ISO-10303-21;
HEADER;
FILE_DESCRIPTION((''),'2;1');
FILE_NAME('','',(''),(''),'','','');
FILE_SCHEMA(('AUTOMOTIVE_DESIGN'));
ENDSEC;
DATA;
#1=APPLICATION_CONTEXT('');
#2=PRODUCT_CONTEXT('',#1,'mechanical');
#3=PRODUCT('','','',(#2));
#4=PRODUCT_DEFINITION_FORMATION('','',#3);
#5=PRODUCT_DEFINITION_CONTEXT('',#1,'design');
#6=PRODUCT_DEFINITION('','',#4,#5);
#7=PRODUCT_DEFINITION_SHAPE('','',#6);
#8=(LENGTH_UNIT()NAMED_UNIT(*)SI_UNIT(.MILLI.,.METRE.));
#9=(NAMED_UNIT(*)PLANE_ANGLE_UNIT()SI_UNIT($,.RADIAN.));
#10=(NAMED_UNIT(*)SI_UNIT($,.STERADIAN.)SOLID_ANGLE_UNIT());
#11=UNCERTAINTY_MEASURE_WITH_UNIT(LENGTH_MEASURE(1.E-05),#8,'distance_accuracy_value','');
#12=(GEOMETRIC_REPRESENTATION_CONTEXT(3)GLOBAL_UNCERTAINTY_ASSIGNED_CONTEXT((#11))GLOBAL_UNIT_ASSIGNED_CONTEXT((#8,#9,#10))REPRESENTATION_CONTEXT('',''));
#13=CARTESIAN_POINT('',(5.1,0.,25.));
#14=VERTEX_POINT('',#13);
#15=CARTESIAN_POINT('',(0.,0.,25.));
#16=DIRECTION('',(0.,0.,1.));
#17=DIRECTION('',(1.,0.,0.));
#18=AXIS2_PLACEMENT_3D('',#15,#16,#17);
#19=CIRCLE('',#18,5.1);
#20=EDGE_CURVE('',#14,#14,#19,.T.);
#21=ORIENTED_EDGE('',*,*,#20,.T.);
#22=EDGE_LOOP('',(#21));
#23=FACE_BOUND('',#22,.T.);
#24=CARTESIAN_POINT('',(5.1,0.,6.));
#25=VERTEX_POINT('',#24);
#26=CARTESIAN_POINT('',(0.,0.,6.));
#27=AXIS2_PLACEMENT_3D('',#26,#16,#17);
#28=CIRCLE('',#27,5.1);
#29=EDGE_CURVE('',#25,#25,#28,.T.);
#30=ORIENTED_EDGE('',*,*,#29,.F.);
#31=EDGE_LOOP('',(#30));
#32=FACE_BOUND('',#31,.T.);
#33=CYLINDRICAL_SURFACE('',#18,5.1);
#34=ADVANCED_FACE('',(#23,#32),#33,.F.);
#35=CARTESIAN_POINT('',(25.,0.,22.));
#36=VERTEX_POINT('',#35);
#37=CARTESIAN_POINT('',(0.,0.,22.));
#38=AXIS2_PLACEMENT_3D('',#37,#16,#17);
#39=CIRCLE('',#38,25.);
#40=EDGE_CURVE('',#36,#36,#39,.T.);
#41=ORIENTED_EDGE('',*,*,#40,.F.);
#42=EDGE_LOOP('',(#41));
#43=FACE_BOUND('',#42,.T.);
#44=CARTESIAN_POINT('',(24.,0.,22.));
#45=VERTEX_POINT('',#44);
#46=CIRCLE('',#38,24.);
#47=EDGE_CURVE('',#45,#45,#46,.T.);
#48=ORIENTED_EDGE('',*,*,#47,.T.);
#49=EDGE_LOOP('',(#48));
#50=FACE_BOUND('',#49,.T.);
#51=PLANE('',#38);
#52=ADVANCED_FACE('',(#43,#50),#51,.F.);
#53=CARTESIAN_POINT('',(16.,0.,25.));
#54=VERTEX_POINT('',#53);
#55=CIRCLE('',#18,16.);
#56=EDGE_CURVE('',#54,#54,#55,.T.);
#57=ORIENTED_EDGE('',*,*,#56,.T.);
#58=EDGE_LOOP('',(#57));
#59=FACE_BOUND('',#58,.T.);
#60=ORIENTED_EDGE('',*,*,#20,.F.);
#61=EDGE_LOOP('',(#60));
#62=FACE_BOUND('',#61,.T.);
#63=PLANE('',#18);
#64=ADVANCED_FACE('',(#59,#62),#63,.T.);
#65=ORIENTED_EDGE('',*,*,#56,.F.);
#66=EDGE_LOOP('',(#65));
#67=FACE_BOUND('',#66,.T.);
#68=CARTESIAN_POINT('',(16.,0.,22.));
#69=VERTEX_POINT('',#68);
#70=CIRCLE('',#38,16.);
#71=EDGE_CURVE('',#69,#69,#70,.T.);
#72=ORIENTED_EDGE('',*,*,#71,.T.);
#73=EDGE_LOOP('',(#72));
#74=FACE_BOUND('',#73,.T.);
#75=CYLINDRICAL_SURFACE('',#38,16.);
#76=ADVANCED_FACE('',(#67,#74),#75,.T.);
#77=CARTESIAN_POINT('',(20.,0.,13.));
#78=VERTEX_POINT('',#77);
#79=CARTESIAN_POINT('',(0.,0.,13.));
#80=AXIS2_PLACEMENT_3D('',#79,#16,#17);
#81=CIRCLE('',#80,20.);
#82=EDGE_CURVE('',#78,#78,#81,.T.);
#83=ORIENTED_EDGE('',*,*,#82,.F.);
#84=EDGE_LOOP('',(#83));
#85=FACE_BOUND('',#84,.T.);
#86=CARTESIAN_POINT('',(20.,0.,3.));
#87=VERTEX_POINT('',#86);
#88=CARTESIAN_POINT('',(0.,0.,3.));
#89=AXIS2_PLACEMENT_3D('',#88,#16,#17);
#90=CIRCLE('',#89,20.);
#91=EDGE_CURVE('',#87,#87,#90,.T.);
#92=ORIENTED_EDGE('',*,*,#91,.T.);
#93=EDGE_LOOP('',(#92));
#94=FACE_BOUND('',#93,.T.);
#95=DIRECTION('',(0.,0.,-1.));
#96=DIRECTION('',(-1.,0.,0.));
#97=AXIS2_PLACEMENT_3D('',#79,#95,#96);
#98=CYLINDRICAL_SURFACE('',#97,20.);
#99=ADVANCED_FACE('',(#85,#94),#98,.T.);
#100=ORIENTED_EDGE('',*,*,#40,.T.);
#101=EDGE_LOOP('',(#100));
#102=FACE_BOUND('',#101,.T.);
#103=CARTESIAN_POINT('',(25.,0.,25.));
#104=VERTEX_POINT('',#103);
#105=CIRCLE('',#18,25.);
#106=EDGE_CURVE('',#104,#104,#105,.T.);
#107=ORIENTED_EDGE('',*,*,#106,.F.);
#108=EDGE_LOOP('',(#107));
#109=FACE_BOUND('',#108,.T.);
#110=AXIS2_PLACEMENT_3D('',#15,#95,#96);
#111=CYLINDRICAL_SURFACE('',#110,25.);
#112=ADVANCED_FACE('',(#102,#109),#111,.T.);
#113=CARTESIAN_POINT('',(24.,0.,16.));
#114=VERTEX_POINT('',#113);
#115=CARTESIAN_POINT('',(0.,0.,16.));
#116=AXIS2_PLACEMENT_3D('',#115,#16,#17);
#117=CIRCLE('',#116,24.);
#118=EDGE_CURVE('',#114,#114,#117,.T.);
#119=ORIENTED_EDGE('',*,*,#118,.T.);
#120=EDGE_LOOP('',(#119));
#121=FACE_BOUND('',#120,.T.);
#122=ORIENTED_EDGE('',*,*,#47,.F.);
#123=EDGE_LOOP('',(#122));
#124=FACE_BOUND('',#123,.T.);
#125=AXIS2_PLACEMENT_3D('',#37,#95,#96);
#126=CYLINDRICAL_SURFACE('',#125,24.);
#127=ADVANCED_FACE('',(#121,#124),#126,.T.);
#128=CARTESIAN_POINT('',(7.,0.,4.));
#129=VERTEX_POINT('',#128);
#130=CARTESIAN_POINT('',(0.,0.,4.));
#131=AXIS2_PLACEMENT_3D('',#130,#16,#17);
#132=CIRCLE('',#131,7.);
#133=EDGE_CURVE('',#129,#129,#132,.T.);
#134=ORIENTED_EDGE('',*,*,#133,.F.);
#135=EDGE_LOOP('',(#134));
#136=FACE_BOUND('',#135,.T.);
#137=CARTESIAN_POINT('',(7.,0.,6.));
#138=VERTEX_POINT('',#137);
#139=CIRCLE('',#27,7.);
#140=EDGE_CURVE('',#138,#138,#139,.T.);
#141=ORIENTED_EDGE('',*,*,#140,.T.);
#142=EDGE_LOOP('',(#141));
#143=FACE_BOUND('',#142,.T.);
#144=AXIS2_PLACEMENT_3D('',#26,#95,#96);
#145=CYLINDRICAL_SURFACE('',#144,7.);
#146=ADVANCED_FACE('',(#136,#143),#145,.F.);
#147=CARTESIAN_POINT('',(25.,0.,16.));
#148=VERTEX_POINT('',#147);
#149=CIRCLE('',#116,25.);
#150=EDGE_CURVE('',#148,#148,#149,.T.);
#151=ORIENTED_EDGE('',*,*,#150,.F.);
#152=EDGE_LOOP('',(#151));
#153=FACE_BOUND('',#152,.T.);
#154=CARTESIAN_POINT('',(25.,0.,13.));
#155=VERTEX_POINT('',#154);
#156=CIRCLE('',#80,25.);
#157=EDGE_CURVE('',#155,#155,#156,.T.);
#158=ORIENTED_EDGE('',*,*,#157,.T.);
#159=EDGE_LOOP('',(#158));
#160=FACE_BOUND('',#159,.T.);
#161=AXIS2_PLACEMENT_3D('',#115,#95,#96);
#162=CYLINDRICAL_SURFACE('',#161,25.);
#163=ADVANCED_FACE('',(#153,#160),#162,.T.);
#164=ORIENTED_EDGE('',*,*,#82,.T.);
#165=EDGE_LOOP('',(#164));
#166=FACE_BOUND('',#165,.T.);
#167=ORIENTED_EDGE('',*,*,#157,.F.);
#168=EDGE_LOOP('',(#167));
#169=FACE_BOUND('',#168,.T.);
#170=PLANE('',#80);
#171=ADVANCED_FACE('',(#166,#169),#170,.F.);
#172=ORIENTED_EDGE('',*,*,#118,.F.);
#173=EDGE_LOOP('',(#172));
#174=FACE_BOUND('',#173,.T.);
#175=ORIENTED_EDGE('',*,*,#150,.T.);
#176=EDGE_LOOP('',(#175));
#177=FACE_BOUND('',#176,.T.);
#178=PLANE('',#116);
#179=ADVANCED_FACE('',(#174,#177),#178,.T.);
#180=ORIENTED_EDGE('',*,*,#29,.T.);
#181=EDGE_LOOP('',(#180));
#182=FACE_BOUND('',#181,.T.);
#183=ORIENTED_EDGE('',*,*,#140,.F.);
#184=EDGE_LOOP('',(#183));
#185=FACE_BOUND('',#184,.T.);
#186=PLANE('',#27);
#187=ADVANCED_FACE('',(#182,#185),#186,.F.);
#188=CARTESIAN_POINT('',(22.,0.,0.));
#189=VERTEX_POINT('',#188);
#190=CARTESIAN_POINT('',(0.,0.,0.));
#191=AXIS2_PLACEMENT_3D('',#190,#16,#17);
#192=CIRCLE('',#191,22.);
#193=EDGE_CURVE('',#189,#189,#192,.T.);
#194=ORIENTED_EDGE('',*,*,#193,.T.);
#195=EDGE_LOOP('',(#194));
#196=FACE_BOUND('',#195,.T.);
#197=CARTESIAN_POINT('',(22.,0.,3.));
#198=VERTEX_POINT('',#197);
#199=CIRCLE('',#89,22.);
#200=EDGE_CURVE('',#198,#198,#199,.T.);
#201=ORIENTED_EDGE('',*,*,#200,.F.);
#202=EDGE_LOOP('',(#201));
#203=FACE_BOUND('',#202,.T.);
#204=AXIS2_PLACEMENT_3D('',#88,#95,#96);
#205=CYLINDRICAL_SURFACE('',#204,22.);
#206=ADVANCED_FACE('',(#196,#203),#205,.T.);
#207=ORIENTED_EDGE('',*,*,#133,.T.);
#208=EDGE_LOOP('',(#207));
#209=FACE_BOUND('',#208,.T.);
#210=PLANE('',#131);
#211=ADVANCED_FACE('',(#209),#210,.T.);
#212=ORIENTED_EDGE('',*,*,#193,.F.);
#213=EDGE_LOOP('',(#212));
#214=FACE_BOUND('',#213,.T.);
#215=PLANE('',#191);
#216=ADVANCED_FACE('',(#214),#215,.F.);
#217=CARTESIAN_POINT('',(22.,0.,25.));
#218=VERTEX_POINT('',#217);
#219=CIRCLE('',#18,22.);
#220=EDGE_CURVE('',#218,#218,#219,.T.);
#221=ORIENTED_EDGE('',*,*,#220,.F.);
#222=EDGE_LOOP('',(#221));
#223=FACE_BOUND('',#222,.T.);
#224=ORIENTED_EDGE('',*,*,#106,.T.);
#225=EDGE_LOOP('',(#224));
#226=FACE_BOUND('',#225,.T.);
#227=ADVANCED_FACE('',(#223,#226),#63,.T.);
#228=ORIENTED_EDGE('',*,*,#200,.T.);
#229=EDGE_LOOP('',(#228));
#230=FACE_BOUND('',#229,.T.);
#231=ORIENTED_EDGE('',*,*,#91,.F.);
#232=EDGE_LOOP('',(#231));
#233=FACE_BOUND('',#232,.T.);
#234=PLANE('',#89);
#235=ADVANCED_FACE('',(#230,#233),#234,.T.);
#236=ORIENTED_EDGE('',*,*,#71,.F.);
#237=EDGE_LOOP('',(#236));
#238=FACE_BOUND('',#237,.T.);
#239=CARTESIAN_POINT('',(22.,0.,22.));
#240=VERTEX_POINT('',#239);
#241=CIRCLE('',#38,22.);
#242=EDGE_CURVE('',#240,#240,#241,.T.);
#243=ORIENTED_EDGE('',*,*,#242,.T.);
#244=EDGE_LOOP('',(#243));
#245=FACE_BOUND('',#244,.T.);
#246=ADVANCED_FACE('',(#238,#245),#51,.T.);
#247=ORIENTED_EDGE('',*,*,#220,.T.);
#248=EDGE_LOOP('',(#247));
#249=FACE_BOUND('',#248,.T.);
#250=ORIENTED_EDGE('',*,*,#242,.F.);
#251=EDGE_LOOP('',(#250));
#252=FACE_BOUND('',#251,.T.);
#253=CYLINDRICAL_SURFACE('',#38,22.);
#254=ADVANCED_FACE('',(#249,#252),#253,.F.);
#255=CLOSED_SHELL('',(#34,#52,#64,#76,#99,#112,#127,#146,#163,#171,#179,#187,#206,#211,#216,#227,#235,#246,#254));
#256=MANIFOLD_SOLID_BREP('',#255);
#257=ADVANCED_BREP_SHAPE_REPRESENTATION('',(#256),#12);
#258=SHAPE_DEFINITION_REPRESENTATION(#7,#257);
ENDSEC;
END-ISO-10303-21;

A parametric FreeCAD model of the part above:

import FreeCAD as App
import Part
import Sketcher

doc = App.newDocument("Part")
body = doc.addObject("PartDesign::Body", "Body")

sketch1 = body.newObject("Sketcher::SketchObject", "Sketch")
sketch1.AttachmentSupport = (doc.getObject("XY_Plane"), [""])
sketch1.MapMode = "FlatFace"
sketch1.addGeometry(Part.Circle(App.Vector(0, 0, 0), App.Vector(0, 0, 1), 22), False)
sketch1.addConstraint([
    Sketcher.Constraint("Coincident", 0, 3, -1, 1),
    Sketcher.Constraint("Diameter", 0, 44.0),
])
pad1 = body.newObject("PartDesign::Pad", "Pad")
pad1.Profile = sketch1
pad1.Length = 3

sketch2 = body.newObject("Sketcher::SketchObject", "Sketch001")
sketch2.AttachmentSupport = (doc.getObject("XY_Plane"), [""])
sketch2.MapMode = "FlatFace"
sketch2.AttachmentOffset = App.Placement(App.Vector(0, 0, 3), App.Rotation())
sketch2.addGeometry(Part.Circle(App.Vector(0, 0, 0), App.Vector(0, 0, 1), 20), False)
sketch2.addConstraint([
    Sketcher.Constraint("Coincident", 0, 3, -1, 1),
    Sketcher.Constraint("Diameter", 0, 40.0),
])
pad2 = body.newObject("PartDesign::Pad", "Pad001")
pad2.Profile = sketch2
pad2.Length = 10

sketch3 = body.newObject("Sketcher::SketchObject", "Sketch002")
sketch3.AttachmentSupport = (doc.getObject("XY_Plane"), [""])
sketch3.MapMode = "FlatFace"
sketch3.AttachmentOffset = App.Placement(App.Vector(0, 0, 13), App.Rotation())
sketch3.addGeometry(Part.Circle(App.Vector(0, 0, 0), App.Vector(0, 0, 1), 25), False)
sketch3.addConstraint([
    Sketcher.Constraint("Coincident", 0, 3, -1, 1),
    Sketcher.Constraint("Diameter", 0, 50.0),
])
pad3 = body.newObject("PartDesign::Pad", "Pad002")
pad3.Profile = sketch3
pad3.Length = 3

sketch4 = body.newObject("Sketcher::SketchObject", "Sketch003")
sketch4.AttachmentSupport = (doc.getObject("XY_Plane"), [""])
sketch4.MapMode = "FlatFace"
sketch4.AttachmentOffset = App.Placement(App.Vector(0, 0, 16), App.Rotation())
sketch4.addGeometry(Part.Circle(App.Vector(0, 0, 0), App.Vector(0, 0, 1), 24), False)
sketch4.addConstraint([
    Sketcher.Constraint("Coincident", 0, 3, -1, 1),
    Sketcher.Constraint("Diameter", 0, 48.0),
])
pad4 = body.newObject("PartDesign::Pad", "Pad003")
pad4.Profile = sketch4
pad4.Length = 6

sketch5 = body.newObject("Sketcher::SketchObject", "Sketch004")
sketch5.AttachmentSupport = (doc.getObject("XY_Plane"), [""])
sketch5.MapMode = "FlatFace"
sketch5.AttachmentOffset = App.Placement(App.Vector(0, 0, 22), App.Rotation())
sketch5.addGeometry(Part.Circle(App.Vector(0, 0, 0), App.Vector(0, 0, 1), 25), False)
sketch5.addConstraint([
    Sketcher.Constraint("Coincident", 0, 3, -1, 1),
    Sketcher.Constraint("Diameter", 0, 50.0),
])
pad5 = body.newObject("PartDesign::Pad", "Pad004")
pad5.Profile = sketch5
pad5.Length = 3

sketch6 = body.newObject("Sketcher::SketchObject", "Sketch005")
sketch6.AttachmentSupport = (doc.getObject("XY_Plane"), [""])
sketch6.MapMode = "FlatFace"
sketch6.AttachmentOffset = App.Placement(App.Vector(0, 0, 22), App.Rotation())
sketch6.addGeometry([
    Part.Circle(App.Vector(0, 0, 0), App.Vector(0, 0, 1), 22),
    Part.Circle(App.Vector(0, 0, 0), App.Vector(0, 0, 1), 16),
], False)
sketch6.addConstraint([
    Sketcher.Constraint("Coincident", 0, 3, -1, 1),
    Sketcher.Constraint("Coincident", 1, 3, -1, 1),
    Sketcher.Constraint("Diameter", 0, 44.0),
    Sketcher.Constraint("Diameter", 1, 32.0),
])
pocket1 = body.newObject("PartDesign::Pocket", "Pocket")
pocket1.Profile = sketch6
pocket1.Length = 3
pocket1.Reversed = True

sketch7 = body.newObject("Sketcher::SketchObject", "Sketch006")
sketch7.AttachmentSupport = (doc.getObject("XY_Plane"), [""])
sketch7.MapMode = "FlatFace"
sketch7.AttachmentOffset = App.Placement(App.Vector(0, 0, 4), App.Rotation())
sketch7.addGeometry(Part.Circle(App.Vector(0, 0, 0), App.Vector(0, 0, 1), 7), False)
sketch7.addConstraint([
    Sketcher.Constraint("Coincident", 0, 3, -1, 1),
    Sketcher.Constraint("Diameter", 0, 14.0),
])
pocket2 = body.newObject("PartDesign::Pocket", "Pocket001")
pocket2.Profile = sketch7
pocket2.Length = 2
pocket2.Reversed = True

sketch8 = body.newObject("Sketcher::SketchObject", "Sketch007")
sketch8.AttachmentSupport = (doc.getObject("XY_Plane"), [""])
sketch8.MapMode = "FlatFace"
sketch8.AttachmentOffset = App.Placement(App.Vector(0, 0, 25), App.Rotation())
sketch8.addGeometry(Part.Circle(App.Vector(0, 0, 0), App.Vector(0, 0, 1), 5), False)
sketch8.addConstraint([
    Sketcher.Constraint("Coincident", 0, 3, -1, 1),
    Sketcher.Constraint("Diameter", 0, 10.2),
])
doc.recompute()
hole = body.newObject("PartDesign::Hole", "Hole")
hole.Profile = sketch8
hole.ThreadType = "None"
hole.Diameter = 10.2
hole.DepthType = "Dimension"
hole.Depth = 19
hole.DrillPoint = "Flat"

doc.recompute()
